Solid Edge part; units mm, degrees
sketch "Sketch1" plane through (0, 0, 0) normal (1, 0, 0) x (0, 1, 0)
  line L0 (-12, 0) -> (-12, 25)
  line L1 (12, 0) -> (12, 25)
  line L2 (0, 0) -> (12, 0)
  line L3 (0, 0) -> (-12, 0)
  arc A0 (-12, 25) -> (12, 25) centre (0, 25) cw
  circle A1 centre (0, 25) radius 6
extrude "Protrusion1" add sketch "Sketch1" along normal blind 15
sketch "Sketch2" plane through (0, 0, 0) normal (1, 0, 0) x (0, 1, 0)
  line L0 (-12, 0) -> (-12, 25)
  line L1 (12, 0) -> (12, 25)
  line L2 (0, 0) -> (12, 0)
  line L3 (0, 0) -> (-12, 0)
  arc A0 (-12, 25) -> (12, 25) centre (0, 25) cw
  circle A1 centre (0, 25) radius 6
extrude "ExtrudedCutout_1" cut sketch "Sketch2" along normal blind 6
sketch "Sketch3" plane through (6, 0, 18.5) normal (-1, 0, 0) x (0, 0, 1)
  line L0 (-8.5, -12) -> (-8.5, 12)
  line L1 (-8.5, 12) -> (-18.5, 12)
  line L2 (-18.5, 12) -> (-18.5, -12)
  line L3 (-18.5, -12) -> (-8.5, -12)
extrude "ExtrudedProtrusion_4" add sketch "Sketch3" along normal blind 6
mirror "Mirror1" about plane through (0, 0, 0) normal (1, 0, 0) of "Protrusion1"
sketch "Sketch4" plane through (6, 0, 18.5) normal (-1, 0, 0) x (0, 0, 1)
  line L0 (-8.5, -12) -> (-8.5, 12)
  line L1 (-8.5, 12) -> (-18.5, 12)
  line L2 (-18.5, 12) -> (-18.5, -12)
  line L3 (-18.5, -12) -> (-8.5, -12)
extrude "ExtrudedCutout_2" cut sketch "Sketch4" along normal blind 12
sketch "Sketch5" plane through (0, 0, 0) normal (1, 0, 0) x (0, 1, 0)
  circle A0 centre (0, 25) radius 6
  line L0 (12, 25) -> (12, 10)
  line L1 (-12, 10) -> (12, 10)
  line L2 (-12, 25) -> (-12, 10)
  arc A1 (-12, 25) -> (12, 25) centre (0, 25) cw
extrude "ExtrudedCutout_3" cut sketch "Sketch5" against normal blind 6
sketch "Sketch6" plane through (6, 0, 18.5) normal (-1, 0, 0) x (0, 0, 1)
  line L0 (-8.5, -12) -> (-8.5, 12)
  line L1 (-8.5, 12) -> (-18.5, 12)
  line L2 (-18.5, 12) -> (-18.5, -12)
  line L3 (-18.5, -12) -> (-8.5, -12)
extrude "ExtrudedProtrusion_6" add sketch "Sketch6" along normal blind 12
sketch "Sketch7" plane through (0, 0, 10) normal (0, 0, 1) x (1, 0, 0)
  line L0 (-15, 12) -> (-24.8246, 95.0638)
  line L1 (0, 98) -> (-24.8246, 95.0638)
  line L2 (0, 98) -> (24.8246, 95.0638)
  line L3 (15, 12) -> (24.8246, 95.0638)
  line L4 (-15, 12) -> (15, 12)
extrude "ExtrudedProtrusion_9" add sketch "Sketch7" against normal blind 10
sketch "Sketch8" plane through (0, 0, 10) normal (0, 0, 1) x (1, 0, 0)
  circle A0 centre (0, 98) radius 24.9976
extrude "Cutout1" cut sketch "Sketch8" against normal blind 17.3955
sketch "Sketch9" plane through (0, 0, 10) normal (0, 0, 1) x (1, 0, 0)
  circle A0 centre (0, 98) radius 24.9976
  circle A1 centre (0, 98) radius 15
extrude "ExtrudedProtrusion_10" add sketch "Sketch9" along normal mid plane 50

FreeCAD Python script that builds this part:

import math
import FreeCAD as App
import Part
import Sketcher

doc = App.newDocument("Part")
body = doc.addObject("PartDesign::Body", "Body")
body.AllowCompound = True

# Sketch on YZ plane
sketch1 = body.newObject("Sketcher::SketchObject", "Sketch")
sketch1.AttachmentSupport = (doc.getObject("YZ_Plane"), [""])
sketch1.MapMode = "FlatFace"
sketch1.addGeometry(Part.LineSegment(App.Vector(-12, 25, 0), App.Vector(-12, 0, 0)), False)
sketch1.addGeometry(Part.LineSegment(App.Vector(-12, 0, 0), App.Vector(12, 0, 0)), False)
sketch1.addGeometry(Part.LineSegment(App.Vector(12, 0, 0), App.Vector(12, 25, 0)), False)
sketch1.addGeometry(Part.ArcOfCircle(Part.Circle(App.Vector(0, 25, 0), App.Vector(0, 0, 1), 12), math.radians(0), math.radians(180)), False)
sketch1.addGeometry(Part.Circle(App.Vector(0, 25, 0), App.Vector(0, 0, 1), 6), False)
sketch1.addConstraint(Sketcher.Constraint("Coincident", 0, 2, 1, 1))
sketch1.addConstraint(Sketcher.Constraint("Coincident", 1, 2, 2, 1))
sketch1.addConstraint(Sketcher.Constraint("Tangent", 2, 2, 3, 1))
sketch1.addConstraint(Sketcher.Constraint("Tangent", 3, 2, 0, 1))
sketch1.addConstraint(Sketcher.Constraint("Vertical", 0))
sketch1.addConstraint(Sketcher.Constraint("Horizontal", 1))
sketch1.addConstraint(Sketcher.Constraint("Vertical", 2))
sketch1.addConstraint(Sketcher.Constraint("Coincident", 4, 3, 3, 3))
sketch1.addConstraint(Sketcher.Constraint("Symmetric", 0, 2, 1, 2, -1, 1))
sketch1.addConstraint(Sketcher.Constraint("Diameter", 4, 12.0))
sketch1.addConstraint(Sketcher.Constraint("Radius", 3, 12.0))
sketch1.addConstraint(Sketcher.Constraint("DistanceY", 0, 2, 0, 1, 25.0))
pad1 = body.newObject("PartDesign::Pad", "Pad")
pad1.Profile = sketch1
pad1.Length = 15

# Sketch on YZ plane
sketch2 = body.newObject("Sketcher::SketchObject", "Sketch001")
sketch2.AttachmentSupport = (doc.getObject("YZ_Plane"), [""])
sketch2.MapMode = "FlatFace"
sketch2.addGeometry(Part.LineSegment(App.Vector(-12, 25, 0), App.Vector(-12, 0, 0)), False)
sketch2.addGeometry(Part.LineSegment(App.Vector(-12, 0, 0), App.Vector(12, 0, 0)), False)
sketch2.addGeometry(Part.LineSegment(App.Vector(12, 0, 0), App.Vector(12, 25, 0)), False)
sketch2.addGeometry(Part.ArcOfCircle(Part.Circle(App.Vector(0, 25, 0), App.Vector(0, 0, 1), 12), math.radians(0), math.radians(180)), False)
sketch2.addGeometry(Part.Circle(App.Vector(0, 25, 0), App.Vector(0, 0, 1), 6), False)
sketch2.addConstraint(Sketcher.Constraint("Coincident", 0, 2, 1, 1))
sketch2.addConstraint(Sketcher.Constraint("Coincident", 1, 2, 2, 1))
sketch2.addConstraint(Sketcher.Constraint("Tangent", 2, 2, 3, 1))
sketch2.addConstraint(Sketcher.Constraint("Tangent", 3, 2, 0, 1))
sketch2.addConstraint(Sketcher.Constraint("Vertical", 0))
sketch2.addConstraint(Sketcher.Constraint("Horizontal", 1))
sketch2.addConstraint(Sketcher.Constraint("Vertical", 2))
sketch2.addConstraint(Sketcher.Constraint("Coincident", 4, 3, 3, 3))
sketch2.addConstraint(Sketcher.Constraint("Symmetric", 0, 2, 1, 2, -1, 1))
sketch2.addConstraint(Sketcher.Constraint("Diameter", 4, 12.0))
sketch2.addConstraint(Sketcher.Constraint("Radius", 3, 12.0))
sketch2.addConstraint(Sketcher.Constraint("DistanceY", 0, 2, 0, 1, 25.0))
pocket1 = body.newObject("PartDesign::Pocket", "Pocket")
pocket1.Profile = sketch2
pocket1.Length = 6
pocket1.Reversed = True

# Sketch on YZ plane
sketch3 = body.newObject("Sketcher::SketchObject", "Sketch002")
sketch3.AttachmentSupport = (doc.getObject("YZ_Plane"), [""])
sketch3.MapMode = "FlatFace"
sketch3.AttachmentOffset = App.Placement(App.Vector(0, 0, 6), App.Rotation())
sketch3.addGeometry(Part.LineSegment(App.Vector(-12, 0, 0), App.Vector(-12, 10, 0)), False)
sketch3.addGeometry(Part.LineSegment(App.Vector(-12, 10, 0), App.Vector(12, 10, 0)), False)
sketch3.addGeometry(Part.LineSegment(App.Vector(12, 10, 0), App.Vector(12, 0, 0)), False)
sketch3.addGeometry(Part.LineSegment(App.Vector(12, 0, 0), App.Vector(-12, 0, 0)), False)
sketch3.addConstraint(Sketcher.Constraint("Coincident", 0, 2, 1, 1))
sketch3.addConstraint(Sketcher.Constraint("Coincident", 1, 2, 2, 1))
sketch3.addConstraint(Sketcher.Constraint("Coincident", 2, 2, 3, 1))
sketch3.addConstraint(Sketcher.Constraint("Coincident", 3, 2, 0, 1))
sketch3.addConstraint(Sketcher.Constraint("Vertical", 0))
sketch3.addConstraint(Sketcher.Constraint("Horizontal", 1))
sketch3.addConstraint(Sketcher.Constraint("Vertical", 2))
sketch3.addConstraint(Sketcher.Constraint("Horizontal", 3))
sketch3.addConstraint(Sketcher.Constraint("Symmetric", 2, 2, 3, 2, -1, 1))
sketch3.addConstraint(Sketcher.Constraint("DistanceX", 1, 1, 1, 2, 24.0))
sketch3.addConstraint(Sketcher.Constraint("DistanceY", 0, 1, 0, 2, 10.0))
pad2 = body.newObject("PartDesign::Pad", "Pad001")
pad2.Profile = sketch3
pad2.Length = 6
pad2.Reversed = True
doc.recompute()

mirrored = body.newObject("PartDesign::Mirrored", "Mirrored")
mirrored.Originals = [pad1]
mirrored.MirrorPlane = (doc.getObject("YZ_Plane"), [""])
body.Tip = mirrored

# Sketch on YZ plane
sketch4 = body.newObject("Sketcher::SketchObject", "Sketch003")
sketch4.AttachmentSupport = (doc.getObject("YZ_Plane"), [""])
sketch4.MapMode = "FlatFace"
sketch4.AttachmentOffset = App.Placement(App.Vector(0, 0, 6), App.Rotation())
sketch4.addGeometry(Part.LineSegment(App.Vector(-12, 0, 0), App.Vector(-12, 10, 0)), False)
sketch4.addGeometry(Part.LineSegment(App.Vector(-12, 10, 0), App.Vector(12, 10, 0)), False)
sketch4.addGeometry(Part.LineSegment(App.Vector(12, 10, 0), App.Vector(12, 0, 0)), False)
sketch4.addGeometry(Part.LineSegment(App.Vector(12, 0, 0), App.Vector(-12, 0, 0)), False)
sketch4.addConstraint(Sketcher.Constraint("Coincident", 0, 2, 1, 1))
sketch4.addConstraint(Sketcher.Constraint("Coincident", 1, 2, 2, 1))
sketch4.addConstraint(Sketcher.Constraint("Coincident", 2, 2, 3, 1))
sketch4.addConstraint(Sketcher.Constraint("Coincident", 3, 2, 0, 1))
sketch4.addConstraint(Sketcher.Constraint("Vertical", 0))
sketch4.addConstraint(Sketcher.Constraint("Horizontal", 1))
sketch4.addConstraint(Sketcher.Constraint("Vertical", 2))
sketch4.addConstraint(Sketcher.Constraint("Horizontal", 3))
sketch4.addConstraint(Sketcher.Constraint("Symmetric", 2, 2, 3, 2, -1, 1))
sketch4.addConstraint(Sketcher.Constraint("DistanceX", 1, 1, 1, 2, 24.0))
sketch4.addConstraint(Sketcher.Constraint("DistanceY", 0, 1, 0, 2, 10.0))
pocket2 = body.newObject("PartDesign::Pocket", "Pocket001")
pocket2.Profile = sketch4
pocket2.Length = 12

# Sketch on YZ plane
sketch5 = body.newObject("Sketcher::SketchObject", "Sketch004")
sketch5.AttachmentSupport = (doc.getObject("YZ_Plane"), [""])
sketch5.MapMode = "FlatFace"
sketch5.addGeometry(Part.LineSegment(App.Vector(12, 10, 0), App.Vector(12, 25, 0)), False)
sketch5.addGeometry(Part.ArcOfCircle(Part.Circle(App.Vector(0, 25, 0), App.Vector(0, 0, 1), 12), math.radians(0), math.radians(180)), False)
sketch5.addGeometry(Part.LineSegment(App.Vector(-12, 25, 0), App.Vector(-12, 10, 0)), False)
sketch5.addGeometry(Part.LineSegment(App.Vector(-12, 10, 0), App.Vector(12, 10, 0)), False)
sketch5.addGeometry(Part.Circle(App.Vector(0, 25, 0), App.Vector(0, 0, 1), 6), False)
sketch5.addConstraint(Sketcher.Constraint("Tangent", 0, 2, 1, 1))
sketch5.addConstraint(Sketcher.Constraint("Tangent", 1, 2, 2, 1))
sketch5.addConstraint(Sketcher.Constraint("Coincident", 2, 2, 3, 1))
sketch5.addConstraint(Sketcher.Constraint("Coincident", 3, 2, 0, 1))
sketch5.addConstraint(Sketcher.Constraint("Vertical", 0))
sketch5.addConstraint(Sketcher.Constraint("Vertical", 2))
sketch5.addConstraint(Sketcher.Constraint("Horizontal", 3))
sketch5.addConstraint(Sketcher.Constraint("Coincident", 4, 3, 1, 3))
sketch5.addConstraint(Sketcher.Constraint("PointOnObject", 1, 3, -2))
sketch5.addConstraint(Sketcher.Constraint("Diameter", 4, 12.0))
sketch5.addConstraint(Sketcher.Constraint("Radius", 1, 12.0))
sketch5.addConstraint(Sketcher.Constraint("DistanceY", 0, 1, 0, 2, 15.0))
sketch5.addConstraint(Sketcher.Constraint("DistanceY", -1, 1, 1, 3, 25.0))
pocket3 = body.newObject("PartDesign::Pocket", "Pocket002")
pocket3.Profile = sketch5
pocket3.Length = 6

# Sketch on YZ plane
sketch6 = body.newObject("Sketcher::SketchObject", "Sketch005")
sketch6.AttachmentSupport = (doc.getObject("YZ_Plane"), [""])
sketch6.MapMode = "FlatFace"
sketch6.AttachmentOffset = App.Placement(App.Vector(0, 0, 6), App.Rotation())
sketch6.addGeometry(Part.LineSegment(App.Vector(-12, 0, 0), App.Vector(-12, 10, 0)), False)
sketch6.addGeometry(Part.LineSegment(App.Vector(-12, 10, 0), App.Vector(12, 10, 0)), False)
sketch6.addGeometry(Part.LineSegment(App.Vector(12, 10, 0), App.Vector(12, 0, 0)), False)
sketch6.addGeometry(Part.LineSegment(App.Vector(12, 0, 0), App.Vector(-12, 0, 0)), False)
sketch6.addConstraint(Sketcher.Constraint("Coincident", 0, 2, 1, 1))
sketch6.addConstraint(Sketcher.Constraint("Coincident", 1, 2, 2, 1))
sketch6.addConstraint(Sketcher.Constraint("Coincident", 2, 2, 3, 1))
sketch6.addConstraint(Sketcher.Constraint("Coincident", 3, 2, 0, 1))
sketch6.addConstraint(Sketcher.Constraint("Vertical", 0))
sketch6.addConstraint(Sketcher.Constraint("Horizontal", 1))
sketch6.addConstraint(Sketcher.Constraint("Vertical", 2))
sketch6.addConstraint(Sketcher.Constraint("Horizontal", 3))
sketch6.addConstraint(Sketcher.Constraint("Symmetric", 2, 2, 3, 2, -1, 1))
sketch6.addConstraint(Sketcher.Constraint("DistanceX", 1, 1, 1, 2, 24.0))
sketch6.addConstraint(Sketcher.Constraint("DistanceY", 0, 1, 0, 2, 10.0))
pad3 = body.newObject("PartDesign::Pad", "Pad002")
pad3.Profile = sketch6
pad3.Length = 12
pad3.Reversed = True

# Sketch on XY plane
sketch7 = body.newObject("Sketcher::SketchObject", "Sketch006")
sketch7.AttachmentSupport = (doc.getObject("XY_Plane"), [""])
sketch7.MapMode = "FlatFace"
sketch7.AttachmentOffset = App.Placement(App.Vector(0, 0, 10), App.Rotation())
sketch7.addGeometry(Part.LineSegment(App.Vector(-24.8246, 95.0638, 0), App.Vector(-15, 12, 0)), False)
sketch7.addGeometry(Part.LineSegment(App.Vector(-15, 12, 0), App.Vector(15, 12, 0)), False)
sketch7.addGeometry(Part.LineSegment(App.Vector(15, 12, 0), App.Vector(24.8246, 95.0638, 0)), False)
sketch7.addGeometry(Part.LineSegment(App.Vector(24.8246, 95.0638, 0), App.Vector(0, 98, 0)), False)
sketch7.addGeometry(Part.LineSegment(App.Vector(0, 98, 0), App.Vector(-24.8246, 95.0638, 0)), False)
sketch7.addConstraint(Sketcher.Constraint("Coincident", 0, 2, 1, 1))
sketch7.addConstraint(Sketcher.Constraint("Coincident", 1, 2, 2, 1))
sketch7.addConstraint(Sketcher.Constraint("Coincident", 2, 2, 3, 1))
sketch7.addConstraint(Sketcher.Constraint("Coincident", 3, 2, 4, 1))
sketch7.addConstraint(Sketcher.Constraint("Coincident", 4, 2, 0, 1))
sketch7.addConstraint(Sketcher.Constraint("Horizontal", 1))
sketch7.addConstraint(Sketcher.Constraint("Symmetric", 2, 2, 4, 2, -2))
sketch7.addConstraint(Sketcher.Constraint("PointOnObject", 3, 2, -2))
sketch7.addConstraint(Sketcher.Constraint("Perpendicular", 2, 3))
sketch7.addConstraint(Sketcher.Constraint("Perpendicular", 0, 4))
sketch7.addConstraint(Sketcher.Constraint("DistanceX", 1, 1, 1, 2, 30.0))
sketch7.addConstraint(Sketcher.Constraint("DistanceY", -1, 1, 0, 2, 12.0))
sketch7.addConstraint(Sketcher.Constraint("DistanceY", -1, 1, 3, 2, 98.0))
sketch7.addConstraint(Sketcher.Constraint("Distance", 0, 83.6428))
pad4 = body.newObject("PartDesign::Pad", "Pad003")
pad4.Profile = sketch7
pad4.Length = 10
pad4.Reversed = True

# Sketch on XY plane
sketch8 = body.newObject("Sketcher::SketchObject", "Sketch007")
sketch8.AttachmentSupport = (doc.getObject("XY_Plane"), [""])
sketch8.MapMode = "FlatFace"
sketch8.AttachmentOffset = App.Placement(App.Vector(0, 0, 10), App.Rotation())
sketch8.addGeometry(Part.Circle(App.Vector(0, 98, 0), App.Vector(0, 0, 1), 24.9976), False)
sketch8.addConstraint(Sketcher.Constraint("PointOnObject", 0, 3, -2))
sketch8.addConstraint(Sketcher.Constraint("DistanceY", -1, 1, 0, 3, 98.0))
sketch8.addConstraint(Sketcher.Constraint("Diameter", 0, 49.9952))
pocket4 = body.newObject("PartDesign::Pocket", "Pocket003")
pocket4.Profile = sketch8
pocket4.Length = 17.3955

# Sketch on XY plane
sketch9 = body.newObject("Sketcher::SketchObject", "Sketch008")
sketch9.AttachmentSupport = (doc.getObject("XY_Plane"), [""])
sketch9.MapMode = "FlatFace"
sketch9.AttachmentOffset = App.Placement(App.Vector(0, 0, 10), App.Rotation())
sketch9.addGeometry(Part.Circle(App.Vector(0, 98, 0), App.Vector(0, 0, 1), 24.9976), False)
sketch9.addGeometry(Part.Circle(App.Vector(0, 98, 0), App.Vector(0, 0, 1), 15), False)
sketch9.addConstraint(Sketcher.Constraint("Coincident", 1, 3, 0, 3))
sketch9.addConstraint(Sketcher.Constraint("PointOnObject", 0, 3, -2))
sketch9.addConstraint(Sketcher.Constraint("Diameter", 1, 30.0))
sketch9.addConstraint(Sketcher.Constraint("DistanceY", -1, 1, 0, 3, 98.0))
sketch9.addConstraint(Sketcher.Constraint("Diameter", 0, 49.9952))
pad5 = body.newObject("PartDesign::Pad", "Pad004")
pad5.Profile = sketch9
pad5.Length = 50
pad5.Midplane = True

doc.recompute()
